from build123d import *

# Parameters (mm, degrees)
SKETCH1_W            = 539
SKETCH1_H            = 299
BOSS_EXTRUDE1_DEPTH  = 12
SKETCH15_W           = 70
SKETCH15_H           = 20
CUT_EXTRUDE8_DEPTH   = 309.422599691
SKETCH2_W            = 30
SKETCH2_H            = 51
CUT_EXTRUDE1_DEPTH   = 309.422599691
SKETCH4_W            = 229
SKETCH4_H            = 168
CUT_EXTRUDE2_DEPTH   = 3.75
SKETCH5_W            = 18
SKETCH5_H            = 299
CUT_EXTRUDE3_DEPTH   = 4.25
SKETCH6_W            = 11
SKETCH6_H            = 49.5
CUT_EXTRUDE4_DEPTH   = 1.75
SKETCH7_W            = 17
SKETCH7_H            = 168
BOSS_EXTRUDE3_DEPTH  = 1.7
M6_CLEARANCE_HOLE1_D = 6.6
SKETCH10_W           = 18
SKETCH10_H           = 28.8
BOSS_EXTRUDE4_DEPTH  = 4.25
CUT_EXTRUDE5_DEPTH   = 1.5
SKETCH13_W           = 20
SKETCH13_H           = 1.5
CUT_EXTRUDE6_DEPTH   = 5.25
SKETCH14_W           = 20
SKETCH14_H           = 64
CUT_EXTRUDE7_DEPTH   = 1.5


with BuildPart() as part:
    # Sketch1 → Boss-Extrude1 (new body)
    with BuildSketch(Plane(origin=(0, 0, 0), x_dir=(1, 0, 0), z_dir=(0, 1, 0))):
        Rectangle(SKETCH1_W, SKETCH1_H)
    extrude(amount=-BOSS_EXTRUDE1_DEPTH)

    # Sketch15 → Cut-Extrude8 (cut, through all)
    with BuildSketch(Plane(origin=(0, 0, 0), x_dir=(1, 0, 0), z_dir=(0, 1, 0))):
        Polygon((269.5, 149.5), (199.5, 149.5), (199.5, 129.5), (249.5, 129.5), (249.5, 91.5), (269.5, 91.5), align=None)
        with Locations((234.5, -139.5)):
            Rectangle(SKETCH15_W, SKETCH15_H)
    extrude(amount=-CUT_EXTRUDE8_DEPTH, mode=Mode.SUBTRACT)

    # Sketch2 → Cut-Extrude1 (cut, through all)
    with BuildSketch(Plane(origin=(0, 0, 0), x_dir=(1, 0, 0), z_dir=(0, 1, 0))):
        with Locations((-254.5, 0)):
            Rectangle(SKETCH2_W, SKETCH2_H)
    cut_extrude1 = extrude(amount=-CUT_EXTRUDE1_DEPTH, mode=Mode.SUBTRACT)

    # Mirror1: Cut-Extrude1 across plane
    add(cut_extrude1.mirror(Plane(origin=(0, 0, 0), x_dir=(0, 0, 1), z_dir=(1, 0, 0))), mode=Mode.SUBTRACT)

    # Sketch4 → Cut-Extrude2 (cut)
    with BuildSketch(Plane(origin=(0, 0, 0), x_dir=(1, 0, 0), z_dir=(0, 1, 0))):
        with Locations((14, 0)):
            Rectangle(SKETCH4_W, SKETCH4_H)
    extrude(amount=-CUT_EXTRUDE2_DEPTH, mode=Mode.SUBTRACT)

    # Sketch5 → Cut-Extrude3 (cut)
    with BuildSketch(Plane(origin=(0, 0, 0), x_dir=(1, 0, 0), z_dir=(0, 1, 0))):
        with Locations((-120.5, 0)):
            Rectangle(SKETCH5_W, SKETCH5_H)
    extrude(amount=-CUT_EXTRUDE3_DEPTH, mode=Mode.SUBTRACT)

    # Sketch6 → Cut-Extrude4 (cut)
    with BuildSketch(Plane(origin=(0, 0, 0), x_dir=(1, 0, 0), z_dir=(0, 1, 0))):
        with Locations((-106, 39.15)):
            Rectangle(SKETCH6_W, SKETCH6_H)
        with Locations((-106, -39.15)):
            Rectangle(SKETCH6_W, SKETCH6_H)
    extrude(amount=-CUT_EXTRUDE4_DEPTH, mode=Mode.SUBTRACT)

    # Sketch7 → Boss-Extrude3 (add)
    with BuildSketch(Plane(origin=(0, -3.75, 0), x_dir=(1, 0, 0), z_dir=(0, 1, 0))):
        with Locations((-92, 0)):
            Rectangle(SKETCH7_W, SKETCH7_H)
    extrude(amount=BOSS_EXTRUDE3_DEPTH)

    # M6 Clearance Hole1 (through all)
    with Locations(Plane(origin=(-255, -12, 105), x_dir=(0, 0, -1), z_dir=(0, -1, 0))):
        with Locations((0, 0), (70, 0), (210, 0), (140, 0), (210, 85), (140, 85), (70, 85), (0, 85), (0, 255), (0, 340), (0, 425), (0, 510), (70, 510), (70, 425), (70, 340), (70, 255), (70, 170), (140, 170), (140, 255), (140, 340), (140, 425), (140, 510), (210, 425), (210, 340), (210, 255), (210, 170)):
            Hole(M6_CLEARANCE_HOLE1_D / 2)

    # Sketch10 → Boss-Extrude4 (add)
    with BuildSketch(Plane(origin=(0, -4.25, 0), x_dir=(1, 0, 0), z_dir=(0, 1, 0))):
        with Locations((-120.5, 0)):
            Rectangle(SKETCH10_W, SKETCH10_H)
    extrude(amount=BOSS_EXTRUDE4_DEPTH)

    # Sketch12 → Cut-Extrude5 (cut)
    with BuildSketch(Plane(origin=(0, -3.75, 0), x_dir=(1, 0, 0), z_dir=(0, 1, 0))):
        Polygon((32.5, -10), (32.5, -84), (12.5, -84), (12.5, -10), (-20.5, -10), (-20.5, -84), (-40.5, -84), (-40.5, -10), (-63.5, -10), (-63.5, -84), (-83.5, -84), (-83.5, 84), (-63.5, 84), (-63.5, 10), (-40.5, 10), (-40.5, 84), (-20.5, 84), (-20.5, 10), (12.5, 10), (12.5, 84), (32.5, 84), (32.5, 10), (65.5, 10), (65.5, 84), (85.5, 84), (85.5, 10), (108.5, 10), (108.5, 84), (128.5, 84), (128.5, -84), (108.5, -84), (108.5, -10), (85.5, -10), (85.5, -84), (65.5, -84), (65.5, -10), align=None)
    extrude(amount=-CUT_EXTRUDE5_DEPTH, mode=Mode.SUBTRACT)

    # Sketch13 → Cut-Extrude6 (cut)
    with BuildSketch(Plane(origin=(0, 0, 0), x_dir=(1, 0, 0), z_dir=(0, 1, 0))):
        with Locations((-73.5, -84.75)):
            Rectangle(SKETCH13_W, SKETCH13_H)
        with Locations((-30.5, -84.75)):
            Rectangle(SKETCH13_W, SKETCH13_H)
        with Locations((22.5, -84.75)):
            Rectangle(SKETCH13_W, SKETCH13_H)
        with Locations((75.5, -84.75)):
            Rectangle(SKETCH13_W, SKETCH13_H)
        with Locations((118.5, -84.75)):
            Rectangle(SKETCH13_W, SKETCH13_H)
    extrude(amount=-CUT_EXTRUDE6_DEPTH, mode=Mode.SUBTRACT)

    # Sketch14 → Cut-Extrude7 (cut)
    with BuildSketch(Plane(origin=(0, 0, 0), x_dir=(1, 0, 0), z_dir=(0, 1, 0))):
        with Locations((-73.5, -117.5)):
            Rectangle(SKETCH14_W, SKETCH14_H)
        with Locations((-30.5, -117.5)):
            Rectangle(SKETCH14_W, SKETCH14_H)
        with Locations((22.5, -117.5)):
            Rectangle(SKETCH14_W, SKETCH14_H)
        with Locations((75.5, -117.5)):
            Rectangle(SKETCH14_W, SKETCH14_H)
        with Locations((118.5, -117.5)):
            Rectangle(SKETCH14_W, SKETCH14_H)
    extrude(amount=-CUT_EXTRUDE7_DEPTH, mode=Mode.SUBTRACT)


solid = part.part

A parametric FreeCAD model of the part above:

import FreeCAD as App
import Part
import Sketcher
Q = App.Units.Quantity

doc = App.newDocument("Part")
body = doc.addObject("PartDesign::Body", "Body")

# Sketch on XZ plane
sketch1 = body.newObject("Sketcher::SketchObject", "Sketch")
sketch1.AttachmentSupport = (doc.getObject("XZ_Plane"), [""])
sketch1.MapMode = "FlatFace"
sketch1.addGeometry([
    Part.LineSegment(App.Vector(-270, -150, 0), App.Vector(-270, 150, 0)),
    Part.LineSegment(App.Vector(-270, 150, 0), App.Vector(270, 150, 0)),
    Part.LineSegment(App.Vector(270, 150, 0), App.Vector(270, -150, 0)),
    Part.LineSegment(App.Vector(270, -150, 0), App.Vector(-270, -150, 0)),
], False)
sketch1.addConstraint([
    Sketcher.Constraint("Coincident", 0, 2, 1, 1),
    Sketcher.Constraint("Coincident", 1, 2, 2, 1),
    Sketcher.Constraint("Coincident", 2, 2, 3, 1),
    Sketcher.Constraint("Coincident", 3, 2, 0, 1),
    Sketcher.Constraint("Vertical", 0),
    Sketcher.Constraint("Horizontal", 1),
    Sketcher.Constraint("Vertical", 2),
    Sketcher.Constraint("Horizontal", 3),
    Sketcher.Constraint("Symmetric", 0, 2, 2, 2, -1, 1),
    Sketcher.Constraint("DistanceX", 1, 1, 1, 2, Q("539 mm")),
    Sketcher.Constraint("DistanceY", 0, 1, 0, 2, Q("299 mm")),
])
pad1 = body.newObject("PartDesign::Pad", "Pad")
pad1.Profile = sketch1
pad1.Length = 12

# Sketch on XZ plane
sketch2 = body.newObject("Sketcher::SketchObject", "Sketch001")
sketch2.AttachmentSupport = (doc.getObject("XZ_Plane"), [""])
sketch2.MapMode = "FlatFace"
sketch2.addGeometry([
    Part.LineSegment(App.Vector(270, -150, 0), App.Vector(200, -150, 0)),  # 0
    Part.LineSegment(App.Vector(200, -150, 0), App.Vector(200, -130, 0)),  # 1
    Part.LineSegment(App.Vector(200, -130, 0), App.Vector(250, -130, 0)),  # 2
    Part.LineSegment(App.Vector(250, -130, 0), App.Vector(250, -92, 0)),  # 3
    Part.LineSegment(App.Vector(250, -92, 0), App.Vector(270, -92, 0)),  # 4
    Part.LineSegment(App.Vector(270, -92, 0), App.Vector(270, -150, 0)),  # 5
    Part.LineSegment(App.Vector(200, 130, 0), App.Vector(200, 150, 0)),  # 6
    Part.LineSegment(App.Vector(200, 150, 0), App.Vector(270, 150, 0)),  # 7
    Part.LineSegment(App.Vector(270, 150, 0), App.Vector(270, 130, 0)),  # 8
    Part.LineSegment(App.Vector(270, 130, 0), App.Vector(200, 130, 0)),  # 9
], False)
sketch2.addConstraint([
    Sketcher.Constraint("Coincident", 0, 2, 1, 1),
    Sketcher.Constraint("Coincident", 1, 2, 2, 1),
    Sketcher.Constraint("Coincident", 2, 2, 3, 1),
    Sketcher.Constraint("Coincident", 3, 2, 4, 1),
    Sketcher.Constraint("Coincident", 4, 2, 5, 1),
    Sketcher.Constraint("Coincident", 5, 2, 0, 1),
    Sketcher.Constraint("Coincident", 6, 2, 7, 1),
    Sketcher.Constraint("Coincident", 7, 2, 8, 1),
    Sketcher.Constraint("Coincident", 8, 2, 9, 1),
    Sketcher.Constraint("Coincident", 9, 2, 6, 1),
    Sketcher.Constraint("Horizontal", 0),
    Sketcher.Constraint("Vertical", 1),
    Sketcher.Constraint("Horizontal", 2),
    Sketcher.Constraint("Vertical", 3),
    Sketcher.Constraint("Horizontal", 4),
    Sketcher.Constraint("Vertical", 5),
    Sketcher.Constraint("Vertical", 6),
    Sketcher.Constraint("Horizontal", 7),
    Sketcher.Constraint("Vertical", 8),
    Sketcher.Constraint("Horizontal", 9),
    Sketcher.Constraint("Symmetric", 0, 2, 6, 2, -1),
    Sketcher.Constraint("Vertical", 5, 2, 7, 2),
    Sketcher.Constraint("Equal", 4, 1),
    Sketcher.Constraint("Equal", 1, 6),
    Sketcher.Constraint("DistanceX", 0, 2, 0, 1, Q("70 mm")),
    Sketcher.Constraint("DistanceX", 2, 1, 2, 2, Q("50 mm")),
    Sketcher.Constraint("DistanceY", 3, 1, 3, 2, Q("38 mm")),
    Sketcher.Constraint("DistanceY", 3, 2, 6, 2, Q("241 mm")),
    Sketcher.Constraint("DistanceX", -1, 1, 0, 2, Q("199.5 mm")),
])
pocket1 = body.newObject("PartDesign::Pocket", "Pocket")
pocket1.Profile = sketch2
pocket1.Type = "ThroughAll"
pocket1.Reversed = True

# Sketch on XZ plane
sketch3 = body.newObject("Sketcher::SketchObject", "Sketch002")
sketch3.AttachmentSupport = (doc.getObject("XZ_Plane"), [""])
sketch3.MapMode = "FlatFace"
sketch3.addGeometry([
    Part.LineSegment(App.Vector(-270, -26, 0), App.Vector(-270, 26, 0)),
    Part.LineSegment(App.Vector(-270, 26, 0), App.Vector(-240, 26, 0)),
    Part.LineSegment(App.Vector(-240, 26, 0), App.Vector(-240, -26, 0)),
    Part.LineSegment(App.Vector(-240, -26, 0), App.Vector(-270, -26, 0)),
], False)
sketch3.addConstraint([
    Sketcher.Constraint("Coincident", 0, 2, 1, 1),
    Sketcher.Constraint("Coincident", 1, 2, 2, 1),
    Sketcher.Constraint("Coincident", 2, 2, 3, 1),
    Sketcher.Constraint("Coincident", 3, 2, 0, 1),
    Sketcher.Constraint("Vertical", 0),
    Sketcher.Constraint("Horizontal", 1),
    Sketcher.Constraint("Vertical", 2),
    Sketcher.Constraint("Horizontal", 3),
    Sketcher.Constraint("DistanceX", 1, 1, 1, 2, Q("30 mm")),
    Sketcher.Constraint("DistanceY", 0, 1, 0, 2, Q("51 mm")),
    Sketcher.Constraint("DistanceX", 0, 2, -1, 1, Q("269.5 mm")),
    Sketcher.Constraint("DistanceY", -1, 1, 0, 2, Q("25.5 mm")),
])
pocket2 = body.newObject("PartDesign::Pocket", "Pocket001")
pocket2.Profile = sketch3
pocket2.Type = "ThroughAll"
pocket2.Reversed = True
doc.recompute()

mirrored = body.newObject("PartDesign::Mirrored", "Mirrored")
mirrored.Originals = [pocket2]
mirrored.MirrorPlane = (doc.getObject("YZ_Plane"), [""])
body.Tip = mirrored

# Sketch on XZ plane
sketch4 = body.newObject("Sketcher::SketchObject", "Sketch003")
sketch4.AttachmentSupport = (doc.getObject("XZ_Plane"), [""])
sketch4.MapMode = "FlatFace"
sketch4.addGeometry([
    Part.LineSegment(App.Vector(-100, -84, 0), App.Vector(-100, 84, 0)),
    Part.LineSegment(App.Vector(-100, 84, 0), App.Vector(128, 84, 0)),
    Part.LineSegment(App.Vector(128, 84, 0), App.Vector(128, -84, 0)),
    Part.LineSegment(App.Vector(128, -84, 0), App.Vector(-100, -84, 0)),
], False)
sketch4.addConstraint([
    Sketcher.Constraint("Coincident", 0, 2, 1, 1),
    Sketcher.Constraint("Coincident", 1, 2, 2, 1),
    Sketcher.Constraint("Coincident", 2, 2, 3, 1),
    Sketcher.Constraint("Coincident", 3, 2, 0, 1),
    Sketcher.Constraint("Vertical", 0),
    Sketcher.Constraint("Horizontal", 1),
    Sketcher.Constraint("Vertical", 2),
    Sketcher.Constraint("Horizontal", 3),
    Sketcher.Constraint("DistanceX", 1, 1, 1, 2, Q("229 mm")),
    Sketcher.Constraint("DistanceY", 0, 1, 0, 2, Q("168 mm")),
    Sketcher.Constraint("DistanceY", -1, 1, 0, 2, Q("84 mm")),
    Sketcher.Constraint("DistanceX", 0, 2, -1, 1, Q("100.5 mm")),
])
pocket3 = body.newObject("PartDesign::Pocket", "Pocket002")
pocket3.Profile = sketch4
pocket3.Length = 3.75
pocket3.Reversed = True

# Sketch on XZ plane
sketch5 = body.newObject("Sketcher::SketchObject", "Sketch004")
sketch5.AttachmentSupport = (doc.getObject("XZ_Plane"), [""])
sketch5.MapMode = "FlatFace"
sketch5.addGeometry([
    Part.LineSegment(App.Vector(-130, -150, 0), App.Vector(-130, 150, 0)),
    Part.LineSegment(App.Vector(-130, 150, 0), App.Vector(-112, 150, 0)),
    Part.LineSegment(App.Vector(-112, 150, 0), App.Vector(-112, -150, 0)),
    Part.LineSegment(App.Vector(-112, -150, 0), App.Vector(-130, -150, 0)),
], False)
sketch5.addConstraint([
    Sketcher.Constraint("Coincident", 0, 2, 1, 1),
    Sketcher.Constraint("Coincident", 1, 2, 2, 1),
    Sketcher.Constraint("Coincident", 2, 2, 3, 1),
    Sketcher.Constraint("Coincident", 3, 2, 0, 1),
    Sketcher.Constraint("Vertical", 0),
    Sketcher.Constraint("Horizontal", 1),
    Sketcher.Constraint("Vertical", 2),
    Sketcher.Constraint("Horizontal", 3),
    Sketcher.Constraint("DistanceX", 1, 1, 1, 2, Q("18 mm")),
    Sketcher.Constraint("DistanceY", 0, 1, 0, 2, Q("299 mm")),
    Sketcher.Constraint("DistanceX", 0, 2, -1, 1, Q("129.5 mm")),
    Sketcher.Constraint("DistanceY", -1, 1, 0, 2, Q("149.5 mm")),
])
pocket4 = body.newObject("PartDesign::Pocket", "Pocket003")
pocket4.Profile = sketch5
pocket4.Length = 4.25
pocket4.Reversed = True

# Sketch on XZ plane
sketch6 = body.newObject("Sketcher::SketchObject", "Sketch005")
sketch6.AttachmentSupport = (doc.getObject("XZ_Plane"), [""])
sketch6.MapMode = "FlatFace"
sketch6.addGeometry([
    Part.LineSegment(App.Vector(-112, -64, 0), App.Vector(-112, -14, 0)),  # 0
    Part.LineSegment(App.Vector(-112, -14, 0), App.Vector(-100, -14, 0)),  # 1
    Part.LineSegment(App.Vector(-100, -14, 0), App.Vector(-100, -64, 0)),  # 2
    Part.LineSegment(App.Vector(-100, -64, 0), App.Vector(-112, -64, 0)),  # 3
    Part.LineSegment(App.Vector(-112, 14, 0), App.Vector(-112, 64, 0)),  # 4
    Part.LineSegment(App.Vector(-112, 64, 0), App.Vector(-100, 64, 0)),  # 5
    Part.LineSegment(App.Vector(-100, 64, 0), App.Vector(-100, 14, 0)),  # 6
    Part.LineSegment(App.Vector(-100, 14, 0), App.Vector(-112, 14, 0)),  # 7
], False)
sketch6.addConstraint([
    Sketcher.Constraint("Coincident", 0, 2, 1, 1),
    Sketcher.Constraint("Coincident", 1, 2, 2, 1),
    Sketcher.Constraint("Coincident", 2, 2, 3, 1),
    Sketcher.Constraint("Coincident", 3, 2, 0, 1),
    Sketcher.Constraint("Coincident", 4, 2, 5, 1),
    Sketcher.Constraint("Coincident", 5, 2, 6, 1),
    Sketcher.Constraint("Coincident", 6, 2, 7, 1),
    Sketcher.Constraint("Coincident", 7, 2, 4, 1),
    Sketcher.Constraint("Vertical", 0),
    Sketcher.Constraint("Horizontal", 1),
    Sketcher.Constraint("Vertical", 2),
    Sketcher.Constraint("Horizontal", 3),
    Sketcher.Constraint("Vertical", 4),
    Sketcher.Constraint("Horizontal", 5),
    Sketcher.Constraint("Vertical", 6),
    Sketcher.Constraint("Horizontal", 7),
    Sketcher.Constraint("Symmetric", 3, 2, 4, 2, -1),
    Sketcher.Constraint("Symmetric", 1, 2, 6, 2, -1),
    Sketcher.Constraint("DistanceX", 1, 1, 1, 2, Q("11 mm")),
    Sketcher.Constraint("DistanceY", 0, 1, 0, 2, Q("49.5 mm")),
    Sketcher.Constraint("DistanceX", 0, 2, -1, 1, Q("111.5 mm")),
    Sketcher.Constraint("DistanceY", 0, 2, -1, 1, Q("14.4 mm")),
])
pocket5 = body.newObject("PartDesign::Pocket", "Pocket004")
pocket5.Profile = sketch6
pocket5.Length = 1.75
pocket5.Reversed = True

# Sketch on XZ plane
sketch7 = body.newObject("Sketcher::SketchObject", "Sketch006")
sketch7.AttachmentSupport = (doc.getObject("XZ_Plane"), [""])
sketch7.MapMode = "FlatFace"
sketch7.AttachmentOffset = App.Placement(App.Vector(0, 0, 3.75), App.Rotation())
sketch7.addGeometry([
    Part.LineSegment(App.Vector(-100, -84, 0), App.Vector(-100, 84, 0)),
    Part.LineSegment(App.Vector(-100, 84, 0), App.Vector(-84, 84, 0)),
    Part.LineSegment(App.Vector(-84, 84, 0), App.Vector(-84, -84, 0)),
    Part.LineSegment(App.Vector(-84, -84, 0), App.Vector(-100, -84, 0)),
], False)
sketch7.addConstraint([
    Sketcher.Constraint("Coincident", 0, 2, 1, 1),
    Sketcher.Constraint("Coincident", 1, 2, 2, 1),
    Sketcher.Constraint("Coincident", 2, 2, 3, 1),
    Sketcher.Constraint("Coincident", 3, 2, 0, 1),
    Sketcher.Constraint("Vertical", 0),
    Sketcher.Constraint("Horizontal", 1),
    Sketcher.Constraint("Vertical", 2),
    Sketcher.Constraint("Horizontal", 3),
    Sketcher.Constraint("DistanceX", 1, 1, 1, 2, Q("17 mm")),
    Sketcher.Constraint("DistanceY", 0, 1, 0, 2, Q("168 mm")),
    Sketcher.Constraint("DistanceY", -1, 1, 0, 2, Q("84 mm")),
    Sketcher.Constraint("DistanceX", 0, 2, -1, 1, Q("100.5 mm")),
])
pad2 = body.newObject("PartDesign::Pad", "Pad001")
pad2.Profile = sketch7
pad2.Length = 1.7
pad2.Reversed = True

# Sketch on XZ plane
sketch8 = body.newObject("Sketcher::SketchObject", "Sketch007")
sketch8.AttachmentSupport = (doc.getObject("XZ_Plane"), [""])
sketch8.MapMode = "FlatFace"
sketch8.AttachmentOffset = App.Placement(App.Vector(0, 0, 12), App.Rotation())
sketch8.addGeometry([
    Part.Circle(App.Vector(-255, 105, 0), App.Vector(0, 0, 1), 3.3),  # 0
    Part.Circle(App.Vector(-255, 35, 0), App.Vector(0, 0, 1), 3.3),  # 1
    Part.Circle(App.Vector(-255, -105, 0), App.Vector(0, 0, 1), 3.3),  # 2
    Part.Circle(App.Vector(-255, -35, 0), App.Vector(0, 0, 1), 3.3),  # 3
    Part.Circle(App.Vector(-170, -105, 0), App.Vector(0, 0, 1), 3.3),  # 4
    Part.Circle(App.Vector(-170, -35, 0), App.Vector(0, 0, 1), 3.3),  # 5
    Part.Circle(App.Vector(-170, 35, 0), App.Vector(0, 0, 1), 3.3),  # 6
    Part.Circle(App.Vector(-170, 105, 0), App.Vector(0, 0, 1), 3.3),  # 7
    Part.Circle(App.Vector(0, 105, 0), App.Vector(0, 0, 1), 3.3),  # 8
    Part.Circle(App.Vector(85, 105, 0), App.Vector(0, 0, 1), 3.3),  # 9
    Part.Circle(App.Vector(170, 105, 0), App.Vector(0, 0, 1), 3.3),  # 10
    Part.Circle(App.Vector(255, 105, 0), App.Vector(0, 0, 1), 3.3),  # 11
    Part.Circle(App.Vector(255, 35, 0), App.Vector(0, 0, 1), 3.3),  # 12
    Part.Circle(App.Vector(170, 35, 0), App.Vector(0, 0, 1), 3.3),  # 13
    Part.Circle(App.Vector(85, 35, 0), App.Vector(0, 0, 1), 3.3),  # 14
    Part.Circle(App.Vector(0, 35, 0), App.Vector(0, 0, 1), 3.3),  # 15
    Part.Circle(App.Vector(-85, 35, 0), App.Vector(0, 0, 1), 3.3),  # 16
    Part.Circle(App.Vector(-85, -35, 0), App.Vector(0, 0, 1), 3.3),  # 17
    Part.Circle(App.Vector(0, -35, 0), App.Vector(0, 0, 1), 3.3),  # 18
    Part.Circle(App.Vector(85, -35, 0), App.Vector(0, 0, 1), 3.3),  # 19
    Part.Circle(App.Vector(170, -35, 0), App.Vector(0, 0, 1), 3.3),  # 20
    Part.Circle(App.Vector(255, -35, 0), App.Vector(0, 0, 1), 3.3),  # 21
    Part.Circle(App.Vector(170, -105, 0), App.Vector(0, 0, 1), 3.3),  # 22
    Part.Circle(App.Vector(85, -105, 0), App.Vector(0, 0, 1), 3.3),  # 23
    Part.Circle(App.Vector(0, -105, 0), App.Vector(0, 0, 1), 3.3),  # 24
    Part.Circle(App.Vector(-85, -105, 0), App.Vector(0, 0, 1), 3.3),  # 25
], False)
sketch8.addConstraint([
    Sketcher.Constraint("Equal", 0, 1),
    Sketcher.Constraint("Equal", 1, 2),
    Sketcher.Constraint("Equal", 2, 3),
    Sketcher.Constraint("Equal", 3, 4),
    Sketcher.Constraint("Equal", 4, 5),
    Sketcher.Constraint("Equal", 5, 6),
    Sketcher.Constraint("Equal", 6, 7),
    Sketcher.Constraint("Equal", 7, 8),
    Sketcher.Constraint("Equal", 8, 9),
    Sketcher.Constraint("Equal", 9, 10),
    Sketcher.Constraint("Equal", 10, 11),
    Sketcher.Constraint("Equal", 11, 12),
    Sketcher.Constraint("Equal", 12, 13),
    Sketcher.Constraint("Equal", 13, 14),
    Sketcher.Constraint("Equal", 14, 15),
    Sketcher.Constraint("Equal", 15, 16),
    Sketcher.Constraint("Equal", 16, 17),
    Sketcher.Constraint("Equal", 17, 18),
    Sketcher.Constraint("Equal", 18, 19),
    Sketcher.Constraint("Equal", 19, 20),
    Sketcher.Constraint("Equal", 20, 21),
    Sketcher.Constraint("Equal", 21, 22),
    Sketcher.Constraint("Equal", 22, 23),
    Sketcher.Constraint("Equal", 23, 24),
    Sketcher.Constraint("Equal", 24, 25),
    Sketcher.Constraint("Symmetric", 4, 3, 10, 3, -1, 1),
    Sketcher.Constraint("Symmetric", 2, 3, 11, 3, -1, 1),
    Sketcher.Constraint("Symmetric", 3, 3, 12, 3, -1, 1),
    Sketcher.Constraint("Symmetric", 5, 3, 13, 3, -1, 1),
    Sketcher.Constraint("Symmetric", 14, 3, 17, 3, -1, 1),
    Sketcher.Constraint("Symmetric", 15, 3, 18, 3, -1, 1),
    Sketcher.Constraint("Symmetric", 16, 3, 19, 3, -1, 1),
    Sketcher.Constraint("Symmetric", 6, 3, 20, 3, -1, 1),
    Sketcher.Constraint("Symmetric", 1, 3, 21, 3, -1, 1),
    Sketcher.Constraint("Symmetric", 7, 3, 22, 3, -1, 1),
    Sketcher.Constraint("Symmetric", 8, 3, 24, 3, -1, 1),
    Sketcher.Constraint("Symmetric", 9, 3, 25, 3, -1, 1),
    Sketcher.Constraint("Symmetric", 7, 3, 10, 3, -2),
    Sketcher.Constraint("Symmetric", 0, 3, 11, 3, -2),
    Sketcher.Constraint("Symmetric", 1, 3, 12, 3, -2),
    Sketcher.Constraint("Symmetric", 6, 3, 13, 3, -2),
    Sketcher.Constraint("Symmetric", 14, 3, 16, 3, -2),
    Sketcher.Constraint("Symmetric", 23, 3, 25, 3, -2),
    Sketcher.Constraint("PointOnObject", 8, 3, -2),
    Sketcher.Constraint("PointOnObject", 15, 3, -2),
    Sketcher.Constraint("Horizontal", 2, 3, 4, 3),
    Sketcher.Constraint("Horizontal", 3, 3, 5, 3),
    Sketcher.Constraint("Horizontal", 7, 3, 8, 3),
    Sketcher.Constraint("Horizontal", 8, 3, 9, 3),
    Sketcher.Constraint("Horizontal", 13, 3, 14, 3),
    Sketcher.Constraint("Horizontal", 14, 3, 15, 3),
    Sketcher.Constraint("Vertical", 0, 3, 1, 3),
    Sketcher.Constraint("Vertical", 4, 3, 5, 3),
    Sketcher.Constraint("Vertical", 9, 3, 14, 3),
    Sketcher.Constraint("Diameter", 0, Q("6.6 mm")),
    Sketcher.Constraint("DistanceX", 0, 3, -1, 1, Q("255 mm")),
    Sketcher.Constraint("DistanceY", -1, 1, 0, 3, Q("105 mm")),
    Sketcher.Constraint("DistanceY", -1, 1, 1, 3, Q("35 mm")),
    Sketcher.Constraint("DistanceX", 4, 3, -1, 1, Q("170 mm")),
    Sketcher.Constraint("DistanceX", -1, 1, 9, 3, Q("85 mm")),
])
doc.recompute()
hole = body.newObject("PartDesign::Hole", "Hole")
hole.Profile = sketch8
hole.ThreadType = "None"
hole.Diameter = 6.6
hole.DepthType = "ThroughAll"

# Sketch on XZ plane
sketch9 = body.newObject("Sketcher::SketchObject", "Sketch008")
sketch9.AttachmentSupport = (doc.getObject("XZ_Plane"), [""])
sketch9.MapMode = "FlatFace"
sketch9.AttachmentOffset = App.Placement(App.Vector(0, 0, 4.25), App.Rotation())
sketch9.addGeometry([
    Part.LineSegment(App.Vector(-130, -14, 0), App.Vector(-130, 14, 0)),
    Part.LineSegment(App.Vector(-130, 14, 0), App.Vector(-112, 14, 0)),
    Part.LineSegment(App.Vector(-112, 14, 0), App.Vector(-112, -14, 0)),
    Part.LineSegment(App.Vector(-112, -14, 0), App.Vector(-130, -14, 0)),
], False)
sketch9.addConstraint([
    Sketcher.Constraint("Coincident", 0, 2, 1, 1),
    Sketcher.Constraint("Coincident", 1, 2, 2, 1),
    Sketcher.Constraint("Coincident", 2, 2, 3, 1),
    Sketcher.Constraint("Coincident", 3, 2, 0, 1),
    Sketcher.Constraint("Vertical", 0),
    Sketcher.Constraint("Horizontal", 1),
    Sketcher.Constraint("Vertical", 2),
    Sketcher.Constraint("Horizontal", 3),
    Sketcher.Constraint("DistanceX", 1, 1, 1, 2, Q("18 mm")),
    Sketcher.Constraint("DistanceY", 0, 1, 0, 2, Q("28.8 mm")),
    Sketcher.Constraint("DistanceX", 0, 2, -1, 1, Q("129.5 mm")),
    Sketcher.Constraint("DistanceY", -1, 1, 0, 2, Q("14.4 mm")),
])
pad3 = body.newObject("PartDesign::Pad", "Pad002")
pad3.Profile = sketch9
pad3.Length = 4.25
pad3.Reversed = True

# Sketch on XZ plane
sketch10 = body.newObject("Sketcher::SketchObject", "Sketch009")
sketch10.AttachmentSupport = (doc.getObject("XZ_Plane"), [""])
sketch10.MapMode = "FlatFace"
sketch10.AttachmentOffset = App.Placement(App.Vector(0, 0, 3.75), App.Rotation())
sketch10.addGeometry([
    Part.LineSegment(App.Vector(32, 84, 0), App.Vector(32, 10, 0)),  # 0
    Part.LineSegment(App.Vector(32, 10, 0), App.Vector(66, 10, 0)),  # 1
    Part.LineSegment(App.Vector(66, 10, 0), App.Vector(66, 84, 0)),  # 2
    Part.LineSegment(App.Vector(66, 84, 0), App.Vector(86, 84, 0)),  # 3
    Part.LineSegment(App.Vector(86, 84, 0), App.Vector(86, 10, 0)),  # 4
    Part.LineSegment(App.Vector(86, 10, 0), App.Vector(108, 10, 0)),  # 5
    Part.LineSegment(App.Vector(108, 10, 0), App.Vector(108, 84, 0)),  # 6
    Part.LineSegment(App.Vector(108, 84, 0), App.Vector(128, 84, 0)),  # 7
    Part.LineSegment(App.Vector(128, 84, 0), App.Vector(128, -84, 0)),  # 8
    Part.LineSegment(App.Vector(128, -84, 0), App.Vector(108, -84, 0)),  # 9
    Part.LineSegment(App.Vector(108, -84, 0), App.Vector(108, -10, 0)),  # 10
    Part.LineSegment(App.Vector(108, -10, 0), App.Vector(86, -10, 0)),  # 11
    Part.LineSegment(App.Vector(86, -10, 0), App.Vector(86, -84, 0)),  # 12
    Part.LineSegment(App.Vector(86, -84, 0), App.Vector(66, -84, 0)),  # 13
    Part.LineSegment(App.Vector(66, -84, 0), App.Vector(66, -10, 0)),  # 14
    Part.LineSegment(App.Vector(66, -10, 0), App.Vector(32, -10, 0)),  # 15
    Part.LineSegment(App.Vector(32, -10, 0), App.Vector(32, -84, 0)),  # 16
    Part.LineSegment(App.Vector(32, -84, 0), App.Vector(12, -84, 0)),  # 17
    Part.LineSegment(App.Vector(12, -84, 0), App.Vector(12, -10, 0)),  # 18
    Part.LineSegment(App.Vector(12, -10, 0), App.Vector(-20, -10, 0)),  # 19
    Part.LineSegment(App.Vector(-20, -10, 0), App.Vector(-20, -84, 0)),  # 20
    Part.LineSegment(App.Vector(-20, -84, 0), App.Vector(-40, -84, 0)),  # 21
    Part.LineSegment(App.Vector(-40, -84, 0), App.Vector(-40, -10, 0)),  # 22
    Part.LineSegment(App.Vector(-40, -10, 0), App.Vector(-64, -10, 0)),  # 23
    Part.LineSegment(App.Vector(-64, -10, 0), App.Vector(-64, -84, 0)),  # 24
    Part.LineSegment(App.Vector(-64, -84, 0), App.Vector(-84, -84, 0)),  # 25
    Part.LineSegment(App.Vector(-84, -84, 0), App.Vector(-84, 84, 0)),  # 26
    Part.LineSegment(App.Vector(-84, 84, 0), App.Vector(-64, 84, 0)),  # 27
    Part.LineSegment(App.Vector(-64, 84, 0), App.Vector(-64, 10, 0)),  # 28
    Part.LineSegment(App.Vector(-64, 10, 0), App.Vector(-40, 10, 0)),  # 29
    Part.LineSegment(App.Vector(-40, 10, 0), App.Vector(-40, 84, 0)),  # 30
    Part.LineSegment(App.Vector(-40, 84, 0), App.Vector(-20, 84, 0)),  # 31
    Part.LineSegment(App.Vector(-20, 84, 0), App.Vector(-20, 10, 0)),  # 32
    Part.LineSegment(App.Vector(-20, 10, 0), App.Vector(12, 10, 0)),  # 33
    Part.LineSegment(App.Vector(12, 10, 0), App.Vector(12, 84, 0)),  # 34
    Part.LineSegment(App.Vector(12, 84, 0), App.Vector(32, 84, 0)),  # 35
], False)
sketch10.addConstraint([
    Sketcher.Constraint("Coincident", 0, 2, 1, 1),
    Sketcher.Constraint("Coincident", 1, 2, 2, 1),
    Sketcher.Constraint("Coincident", 2, 2, 3, 1),
    Sketcher.Constraint("Coincident", 3, 2, 4, 1),
    Sketcher.Constraint("Coincident", 4, 2, 5, 1),
    Sketcher.Constraint("Coincident", 5, 2, 6, 1),
    Sketcher.Constraint("Coincident", 6, 2, 7, 1),
    Sketcher.Constraint("Coincident", 7, 2, 8, 1),
    Sketcher.Constraint("Coincident", 8, 2, 9, 1),
    Sketcher.Constraint("Coincident", 9, 2, 10, 1),
    Sketcher.Constraint("Coincident", 10, 2, 11, 1),
    Sketcher.Constraint("Coincident", 11, 2, 12, 1),
    Sketcher.Constraint("Coincident", 12, 2, 13, 1),
    Sketcher.Constraint("Coincident", 13, 2, 14, 1),
    Sketcher.Constraint("Coincident", 14, 2, 15, 1),
    Sketcher.Constraint("Coincident", 15, 2, 16, 1),
    Sketcher.Constraint("Coincident", 16, 2, 17, 1),
    Sketcher.Constraint("Coincident", 17, 2, 18, 1),
    Sketcher.Constraint("Coincident", 18, 2, 19, 1),
    Sketcher.Constraint("Coincident", 19, 2, 20, 1),
    Sketcher.Constraint("Coincident", 20, 2, 21, 1),
    Sketcher.Constraint("Coincident", 21, 2, 22, 1),
    Sketcher.Constraint("Coincident", 22, 2, 23, 1),
    Sketcher.Constraint("Coincident", 23, 2, 24, 1),
    Sketcher.Constraint("Coincident", 24, 2, 25, 1),
    Sketcher.Constraint("Coincident", 25, 2, 26, 1),
    Sketcher.Constraint("Coincident", 26, 2, 27, 1),
    Sketcher.Constraint("Coincident", 27, 2, 28, 1),
    Sketcher.Constraint("Coincident", 28, 2, 29, 1),
    Sketcher.Constraint("Coincident", 29, 2, 30, 1),
    Sketcher.Constraint("Coincident", 30, 2, 31, 1),
    Sketcher.Constraint("Coincident", 31, 2, 32, 1),
    Sketcher.Constraint("Coincident", 32, 2, 33, 1),
    Sketcher.Constraint("Coincident", 33, 2, 34, 1),
    Sketcher.Constraint("Coincident", 34, 2, 35, 1),
    Sketcher.Constraint("Coincident", 35, 2, 0, 1),
    Sketcher.Constraint("Vertical", 0),
    Sketcher.Constraint("Horizontal", 1),
    Sketcher.Constraint("Vertical", 2),
    Sketcher.Constraint("Horizontal", 3),
    Sketcher.Constraint("Vertical", 4),
    Sketcher.Constraint("Horizontal", 5),
    Sketcher.Constraint("Vertical", 6),
    Sketcher.Constraint("Horizontal", 7),
    Sketcher.Constraint("Vertical", 8),
    Sketcher.Constraint("Horizontal", 9),
    Sketcher.Constraint("Vertical", 10),
    Sketcher.Constraint("Horizontal", 11),
    Sketcher.Constraint("Vertical", 12),
    Sketcher.Constraint("Horizontal", 13),
    Sketcher.Constraint("Vertical", 14),
    Sketcher.Constraint("Horizontal", 15),
    Sketcher.Constraint("Vertical", 16),
    Sketcher.Constraint("Horizontal", 17),
    Sketcher.Constraint("Vertical", 18),
    Sketcher.Constraint("Horizontal", 19),
    Sketcher.Constraint("Vertical", 20),
    Sketcher.Constraint("Horizontal", 21),
    Sketcher.Constraint("Vertical", 22),
    Sketcher.Constraint("Horizontal", 23),
    Sketcher.Constraint("Vertical", 24),
    Sketcher.Constraint("Horizontal", 25),
    Sketcher.Constraint("Vertical", 26),
    Sketcher.Constraint("Horizontal", 27),
    Sketcher.Constraint("Vertical", 28),
    Sketcher.Constraint("Horizontal", 29),
    Sketcher.Constraint("Vertical", 30),
    Sketcher.Constraint("Horizontal", 31),
    Sketcher.Constraint("Vertical", 32),
    Sketcher.Constraint("Horizontal", 33),
    Sketcher.Constraint("Vertical", 34),
    Sketcher.Constraint("Horizontal", 35),
    Sketcher.Constraint("Symmetric", 6, 2, 9, 2, -1),
    Sketcher.Constraint("Symmetric", 4, 2, 11, 2, -1),
    Sketcher.Constraint("Symmetric", 2, 2, 13, 2, -1),
    Sketcher.Constraint("Symmetric", 0, 2, 15, 2, -1),
    Sketcher.Constraint("Symmetric", 24, 2, 27, 2, -1),
    Sketcher.Constraint("Symmetric", 22, 2, 29, 2, -1),
    Sketcher.Constraint("Symmetric", 20, 2, 31, 2, -1),
    Sketcher.Constraint("Symmetric", 18, 2, 33, 2, -1),
    Sketcher.Constraint("Horizontal", 1, 2, 4, 2),
    Sketcher.Constraint("Horizontal", 3, 2, 6, 2),
    Sketcher.Constraint("Horizontal", 13, 2, 16, 2),
    Sketcher.Constraint("Horizontal", 15, 2, 18, 2),
    Sketcher.Constraint("Horizontal", 17, 2, 20, 2),
    Sketcher.Constraint("Horizontal", 19, 2, 22, 2),
    Sketcher.Constraint("Horizontal", 21, 2, 24, 2),
    Sketcher.Constraint("Horizontal", 31, 2, 34, 2),
    Sketcher.Constraint("Equal", 3, 7),
    Sketcher.Constraint("Equal", 13, 17),
    Sketcher.Constraint("Equal", 15, 19),
    Sketcher.Constraint("Equal", 17, 21),
    Sketcher.Constraint("Equal", 11, 23),
    Sketcher.Constraint("Equal", 21, 25),
    Sketcher.Constraint("DistanceX", 1, 1, 1, 2, Q("33 mm")),
    Sketcher.Constraint("DistanceX", 3, 1, 3, 2, Q("20 mm")),
    Sketcher.Constraint("DistanceX", 5, 1, 5, 2, Q("23 mm")),
    Sketcher.Constraint("DistanceY", 0, 2, 0, 1, Q("74 mm")),
    Sketcher.Constraint("DistanceY", 8, 2, 8, 1, Q("168 mm")),
    Sketcher.Constraint("DistanceX", -1, 1, 0, 2, Q("32.5 mm")),
])
pocket6 = body.newObject("PartDesign::Pocket", "Pocket005")
pocket6.Profile = sketch10
pocket6.Length = 1.5
pocket6.Reversed = True

# Sketch on XZ plane
sketch11 = body.newObject("Sketcher::SketchObject", "Sketch010")
sketch11.AttachmentSupport = (doc.getObject("XZ_Plane"), [""])
sketch11.MapMode = "FlatFace"
sketch11.addGeometry([
    Part.LineSegment(App.Vector(-83.5, 84, 0), App.Vector(-83.5, 85.5, 0)),  # 0
    Part.LineSegment(App.Vector(-83.5, 85.5, 0), App.Vector(-63.5, 85.5, 0)),  # 1
    Part.LineSegment(App.Vector(-63.5, 85.5, 0), App.Vector(-63.5, 84, 0)),  # 2
    Part.LineSegment(App.Vector(-63.5, 84, 0), App.Vector(-83.5, 84, 0)),  # 3
    Part.LineSegment(App.Vector(-40.5, 84, 0), App.Vector(-40.5, 85.5, 0)),  # 4
    Part.LineSegment(App.Vector(-40.5, 85.5, 0), App.Vector(-20.5, 85.5, 0)),  # 5
    Part.LineSegment(App.Vector(-20.5, 85.5, 0), App.Vector(-20.5, 84, 0)),  # 6
    Part.LineSegment(App.Vector(-20.5, 84, 0), App.Vector(-40.5, 84, 0)),  # 7
    Part.LineSegment(App.Vector(12.5, 84, 0), App.Vector(12.5, 85.5, 0)),  # 8
    Part.LineSegment(App.Vector(12.5, 85.5, 0), App.Vector(32.5, 85.5, 0)),  # 9
    Part.LineSegment(App.Vector(32.5, 85.5, 0), App.Vector(32.5, 84, 0)),  # 10
    Part.LineSegment(App.Vector(32.5, 84, 0), App.Vector(12.5, 84, 0)),  # 11
    Part.LineSegment(App.Vector(65.5, 84, 0), App.Vector(65.5, 85.5, 0)),  # 12
    Part.LineSegment(App.Vector(65.5, 85.5, 0), App.Vector(85.5, 85.5, 0)),  # 13
    Part.LineSegment(App.Vector(85.5, 85.5, 0), App.Vector(85.5, 84, 0)),  # 14
    Part.LineSegment(App.Vector(85.5, 84, 0), App.Vector(65.5, 84, 0)),  # 15
    Part.LineSegment(App.Vector(108.5, 84, 0), App.Vector(108.5, 85.5, 0)),  # 16
    Part.LineSegment(App.Vector(108.5, 85.5, 0), App.Vector(128.5, 85.5, 0)),  # 17
    Part.LineSegment(App.Vector(128.5, 85.5, 0), App.Vector(128.5, 84, 0)),  # 18
    Part.LineSegment(App.Vector(128.5, 84, 0), App.Vector(108.5, 84, 0)),  # 19
], False)
sketch11.addConstraint([
    Sketcher.Constraint("Coincident", 0, 2, 1, 1),
    Sketcher.Constraint("Coincident", 1, 2, 2, 1),
    Sketcher.Constraint("Coincident", 2, 2, 3, 1),
    Sketcher.Constraint("Coincident", 3, 2, 0, 1),
    Sketcher.Constraint("Coincident", 4, 2, 5, 1),
    Sketcher.Constraint("Coincident", 5, 2, 6, 1),
    Sketcher.Constraint("Coincident", 6, 2, 7, 1),
    Sketcher.Constraint("Coincident", 7, 2, 4, 1),
    Sketcher.Constraint("Coincident", 8, 2, 9, 1),
    Sketcher.Constraint("Coincident", 9, 2, 10, 1),
    Sketcher.Constraint("Coincident", 10, 2, 11, 1),
    Sketcher.Constraint("Coincident", 11, 2, 8, 1),
    Sketcher.Constraint("Coincident", 12, 2, 13, 1),
    Sketcher.Constraint("Coincident", 13, 2, 14, 1),
    Sketcher.Constraint("Coincident", 14, 2, 15, 1),
    Sketcher.Constraint("Coincident", 15, 2, 12, 1),
    Sketcher.Constraint("Coincident", 16, 2, 17, 1),
    Sketcher.Constraint("Coincident", 17, 2, 18, 1),
    Sketcher.Constraint("Coincident", 18, 2, 19, 1),
    Sketcher.Constraint("Coincident", 19, 2, 16, 1),
    Sketcher.Constraint("Vertical", 0),
    Sketcher.Constraint("Horizontal", 1),
    Sketcher.Constraint("Vertical", 2),
    Sketcher.Constraint("Horizontal", 3),
    Sketcher.Constraint("Vertical", 4),
    Sketcher.Constraint("Horizontal", 5),
    Sketcher.Constraint("Vertical", 6),
    Sketcher.Constraint("Horizontal", 7),
    Sketcher.Constraint("Vertical", 8),
    Sketcher.Constraint("Horizontal", 9),
    Sketcher.Constraint("Vertical", 10),
    Sketcher.Constraint("Horizontal", 11),
    Sketcher.Constraint("Vertical", 12),
    Sketcher.Constraint("Horizontal", 13),
    Sketcher.Constraint("Vertical", 14),
    Sketcher.Constraint("Horizontal", 15),
    Sketcher.Constraint("Vertical", 16),
    Sketcher.Constraint("Horizontal", 17),
    Sketcher.Constraint("Vertical", 18),
    Sketcher.Constraint("Horizontal", 19),
    Sketcher.Constraint("Horizontal", 1, 2, 4, 2),
    Sketcher.Constraint("Horizontal", 3, 2, 6, 2),
    Sketcher.Constraint("Horizontal", 5, 2, 8, 2),
    Sketcher.Constraint("Horizontal", 7, 2, 10, 2),
    Sketcher.Constraint("Horizontal", 9, 2, 12, 2),
    Sketcher.Constraint("Horizontal", 11, 2, 14, 2),
    Sketcher.Constraint("Horizontal", 13, 2, 16, 2),
    Sketcher.Constraint("Horizontal", 15, 2, 18, 2),
    Sketcher.Constraint("Equal", 3, 5),
    Sketcher.Constraint("Equal", 7, 9),
    Sketcher.Constraint("Equal", 11, 13),
    Sketcher.Constraint("Equal", 15, 17),
    Sketcher.Constraint("DistanceX", 1, 1, 1, 2, Q("20 mm")),
    Sketcher.Constraint("DistanceY", 0, 1, 0, 2, Q("1.5 mm")),
    Sketcher.Constraint("DistanceY", -1, 1, 2, 2, Q("84 mm")),
    Sketcher.Constraint("DistanceX", 1, 2, 4, 2, Q("23 mm")),
    Sketcher.Constraint("DistanceX", 5, 2, 8, 2, Q("33 mm")),
    Sketcher.Constraint("DistanceX", 9, 2, 12, 2, Q("33 mm")),
    Sketcher.Constraint("DistanceX", 13, 2, 16, 2, Q("23 mm")),
    Sketcher.Constraint("DistanceX", 0, 2, -1, 1, Q("83.5 mm")),
])
pocket7 = body.newObject("PartDesign::Pocket", "Pocket006")
pocket7.Profile = sketch11
pocket7.Length = 5.25
pocket7.Reversed = True

# Sketch on XZ plane
sketch12 = body.newObject("Sketcher::SketchObject", "Sketch011")
sketch12.AttachmentSupport = (doc.getObject("XZ_Plane"), [""])
sketch12.MapMode = "FlatFace"
sketch12.addGeometry([
    Part.LineSegment(App.Vector(-84, 86, 0), App.Vector(-84, 150, 0)),  # 0
    Part.LineSegment(App.Vector(-84, 150, 0), App.Vector(-64, 150, 0)),  # 1
    Part.LineSegment(App.Vector(-64, 150, 0), App.Vector(-64, 86, 0)),  # 2
    Part.LineSegment(App.Vector(-64, 86, 0), App.Vector(-84, 86, 0)),  # 3
    Part.LineSegment(App.Vector(-40, 86, 0), App.Vector(-40, 150, 0)),  # 4
    Part.LineSegment(App.Vector(-40, 150, 0), App.Vector(-20, 150, 0)),  # 5
    Part.LineSegment(App.Vector(-20, 150, 0), App.Vector(-20, 86, 0)),  # 6
    Part.LineSegment(App.Vector(-20, 86, 0), App.Vector(-40, 86, 0)),  # 7
    Part.LineSegment(App.Vector(12, 86, 0), App.Vector(12, 150, 0)),  # 8
    Part.LineSegment(App.Vector(12, 150, 0), App.Vector(32, 150, 0)),  # 9
    Part.LineSegment(App.Vector(32, 150, 0), App.Vector(32, 86, 0)),  # 10
    Part.LineSegment(App.Vector(32, 86, 0), App.Vector(12, 86, 0)),  # 11
    Part.LineSegment(App.Vector(66, 86, 0), App.Vector(66, 150, 0)),  # 12
    Part.LineSegment(App.Vector(66, 150, 0), App.Vector(86, 150, 0)),  # 13
    Part.LineSegment(App.Vector(86, 150, 0), App.Vector(86, 86, 0)),  # 14
    Part.LineSegment(App.Vector(86, 86, 0), App.Vector(66, 86, 0)),  # 15
    Part.LineSegment(App.Vector(108, 86, 0), App.Vector(108, 150, 0)),  # 16
    Part.LineSegment(App.Vector(108, 150, 0), App.Vector(128, 150, 0)),  # 17
    Part.LineSegment(App.Vector(128, 150, 0), App.Vector(128, 86, 0)),  # 18
    Part.LineSegment(App.Vector(128, 86, 0), App.Vector(108, 86, 0)),  # 19
], False)
sketch12.addConstraint([
    Sketcher.Constraint("Coincident", 0, 2, 1, 1),
    Sketcher.Constraint("Coincident", 1, 2, 2, 1),
    Sketcher.Constraint("Coincident", 2, 2, 3, 1),
    Sketcher.Constraint("Coincident", 3, 2, 0, 1),
    Sketcher.Constraint("Coincident", 4, 2, 5, 1),
    Sketcher.Constraint("Coincident", 5, 2, 6, 1),
    Sketcher.Constraint("Coincident", 6, 2, 7, 1),
    Sketcher.Constraint("Coincident", 7, 2, 4, 1),
    Sketcher.Constraint("Coincident", 8, 2, 9, 1),
    Sketcher.Constraint("Coincident", 9, 2, 10, 1),
    Sketcher.Constraint("Coincident", 10, 2, 11, 1),
    Sketcher.Constraint("Coincident", 11, 2, 8, 1),
    Sketcher.Constraint("Coincident", 12, 2, 13, 1),
    Sketcher.Constraint("Coincident", 13, 2, 14, 1),
    Sketcher.Constraint("Coincident", 14, 2, 15, 1),
    Sketcher.Constraint("Coincident", 15, 2, 12, 1),
    Sketcher.Constraint("Coincident", 16, 2, 17, 1),
    Sketcher.Constraint("Coincident", 17, 2, 18, 1),
    Sketcher.Constraint("Coincident", 18, 2, 19, 1),
    Sketcher.Constraint("Coincident", 19, 2, 16, 1),
    Sketcher.Constraint("Vertical", 0),
    Sketcher.Constraint("Horizontal", 1),
    Sketcher.Constraint("Vertical", 2),
    Sketcher.Constraint("Horizontal", 3),
    Sketcher.Constraint("Vertical", 4),
    Sketcher.Constraint("Horizontal", 5),
    Sketcher.Constraint("Vertical", 6),
    Sketcher.Constraint("Horizontal", 7),
    Sketcher.Constraint("Vertical", 8),
    Sketcher.Constraint("Horizontal", 9),
    Sketcher.Constraint("Vertical", 10),
    Sketcher.Constraint("Horizontal", 11),
    Sketcher.Constraint("Vertical", 12),
    Sketcher.Constraint("Horizontal", 13),
    Sketcher.Constraint("Vertical", 14),
    Sketcher.Constraint("Horizontal", 15),
    Sketcher.Constraint("Vertical", 16),
    Sketcher.Constraint("Horizontal", 17),
    Sketcher.Constraint("Vertical", 18),
    Sketcher.Constraint("Horizontal", 19),
    Sketcher.Constraint("Horizontal", 1, 2, 4, 2),
    Sketcher.Constraint("Horizontal", 3, 2, 6, 2),
    Sketcher.Constraint("Horizontal", 5, 2, 8, 2),
    Sketcher.Constraint("Horizontal", 7, 2, 10, 2),
    Sketcher.Constraint("Horizontal", 9, 2, 12, 2),
    Sketcher.Constraint("Horizontal", 11, 2, 14, 2),
    Sketcher.Constraint("Horizontal", 13, 2, 16, 2),
    Sketcher.Constraint("Horizontal", 15, 2, 18, 2),
    Sketcher.Constraint("Equal", 3, 5),
    Sketcher.Constraint("Equal", 7, 9),
    Sketcher.Constraint("Equal", 11, 13),
    Sketcher.Constraint("Equal", 15, 17),
    Sketcher.Constraint("DistanceX", 1, 1, 1, 2, Q("20 mm")),
    Sketcher.Constraint("DistanceY", 0, 1, 0, 2, Q("64 mm")),
    Sketcher.Constraint("DistanceX", 1, 2, 4, 2, Q("23 mm")),
    Sketcher.Constraint("DistanceX", 5, 2, 8, 2, Q("33 mm")),
    Sketcher.Constraint("DistanceX", 9, 2, 12, 2, Q("33 mm")),
    Sketcher.Constraint("DistanceX", 13, 2, 16, 2, Q("23 mm")),
    Sketcher.Constraint("DistanceX", 0, 2, -1, 1, Q("83.5 mm")),
    Sketcher.Constraint("DistanceY", -1, 1, 0, 2, Q("149.5 mm")),
])
pocket8 = body.newObject("PartDesign::Pocket", "Pocket007")
pocket8.Profile = sketch12
pocket8.Length = 1.5
pocket8.Reversed = True

doc.recompute()
